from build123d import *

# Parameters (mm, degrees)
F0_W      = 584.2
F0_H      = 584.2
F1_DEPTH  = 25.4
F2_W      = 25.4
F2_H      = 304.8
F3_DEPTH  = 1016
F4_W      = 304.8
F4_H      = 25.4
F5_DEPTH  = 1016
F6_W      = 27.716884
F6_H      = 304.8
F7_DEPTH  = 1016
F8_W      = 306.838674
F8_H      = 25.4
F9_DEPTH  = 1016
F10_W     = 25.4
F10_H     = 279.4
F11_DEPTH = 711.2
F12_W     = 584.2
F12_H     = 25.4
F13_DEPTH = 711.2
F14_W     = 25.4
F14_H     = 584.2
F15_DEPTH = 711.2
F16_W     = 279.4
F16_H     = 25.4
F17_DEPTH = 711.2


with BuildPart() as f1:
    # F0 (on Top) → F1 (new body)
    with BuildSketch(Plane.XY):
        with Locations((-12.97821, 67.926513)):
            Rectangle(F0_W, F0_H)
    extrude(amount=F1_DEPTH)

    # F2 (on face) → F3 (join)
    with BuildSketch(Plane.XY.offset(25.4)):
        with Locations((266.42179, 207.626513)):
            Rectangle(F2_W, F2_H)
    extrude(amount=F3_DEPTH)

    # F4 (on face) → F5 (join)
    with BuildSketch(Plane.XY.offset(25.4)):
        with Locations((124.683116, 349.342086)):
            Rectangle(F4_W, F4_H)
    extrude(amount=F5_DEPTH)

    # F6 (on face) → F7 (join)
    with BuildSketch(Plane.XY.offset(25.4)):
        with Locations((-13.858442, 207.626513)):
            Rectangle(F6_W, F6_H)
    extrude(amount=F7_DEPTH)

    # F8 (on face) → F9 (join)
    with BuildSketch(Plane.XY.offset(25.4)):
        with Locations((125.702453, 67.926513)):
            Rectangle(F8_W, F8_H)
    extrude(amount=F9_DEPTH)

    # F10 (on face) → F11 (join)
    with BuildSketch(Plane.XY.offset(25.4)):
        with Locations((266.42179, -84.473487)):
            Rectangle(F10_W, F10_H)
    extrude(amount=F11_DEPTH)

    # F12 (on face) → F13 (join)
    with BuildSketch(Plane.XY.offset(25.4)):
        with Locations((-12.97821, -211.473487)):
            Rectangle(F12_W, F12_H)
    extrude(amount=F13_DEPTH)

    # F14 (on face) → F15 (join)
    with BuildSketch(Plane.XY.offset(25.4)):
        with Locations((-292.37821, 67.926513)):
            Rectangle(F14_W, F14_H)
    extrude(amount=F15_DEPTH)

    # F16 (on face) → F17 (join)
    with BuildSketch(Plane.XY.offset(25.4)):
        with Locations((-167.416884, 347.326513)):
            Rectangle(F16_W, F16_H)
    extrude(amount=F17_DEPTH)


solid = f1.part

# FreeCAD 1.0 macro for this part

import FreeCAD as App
import Part
import Sketcher
from FreeCAD import Vector
Q = App.Units.Quantity


def add_polygon(sketch, points):
    """Adds a closed chain of lines whose ends are joined by coincident constraints."""
    first, n = sketch.GeometryCount, len(points)
    for a, b in zip(points, points[1:] + points[:1]):
        sketch.addGeometry(Part.LineSegment(App.Vector(*a, 0), App.Vector(*b, 0)), False)
    for i in range(n):
        sketch.addConstraint(Sketcher.Constraint("Coincident", first + i, 2, first + (i + 1) % n, 1))

doc = App.newDocument("Part")
body = doc.addObject("PartDesign::Body", "Body")

# Sketch on XY plane
sketch1 = doc.addObject("Sketcher::SketchObject", "Sketch")
body.addObject(sketch1)
sketch1.AttachmentSupport = (doc.XY_Plane, [""])
sketch1.MapMode = "FlatFace"
add_polygon(sketch1, [(-305, 360), (-305, -224), (279, -224), (279, 360)])  # lines 0-3
sketch1.addConstraint([
    Sketcher.Constraint("Vertical", 0),
    Sketcher.Constraint("Horizontal", 1),
    Sketcher.Constraint("Vertical", 2),
    Sketcher.Constraint("Horizontal", 3),
    Sketcher.Constraint("Equal", 3, 0),
    Sketcher.Constraint("DistanceX", 1, 1, 1, 2, Q("23 in")),
    Sketcher.Constraint("DistanceX", 0, 2, -1, 1, 305.07821),
    Sketcher.Constraint("DistanceY", 0, 2, -1, 1, 224.173487),
])
pad1 = doc.addObject("PartDesign::Pad", "Pad")
body.addObject(pad1)
pad1.Profile = sketch1
pad1.Length = Q("1 in")

# Sketch on XY plane
sketch2 = doc.addObject("Sketcher::SketchObject", "Sketch001")
body.addObject(sketch2)
sketch2.AttachmentSupport = (doc.XY_Plane, [""])
sketch2.MapMode = "FlatFace"
sketch2.AttachmentOffset = App.Placement(Vector(0, 0, 1 * 25.4), App.Rotation())
add_polygon(sketch2, [(254, 360), (254, 55), (279, 55), (279, 360)])  # lines 0-3
sketch2.addConstraint([
    Sketcher.Constraint("Vertical", 0),
    Sketcher.Constraint("Horizontal", 1),
    Sketcher.Constraint("Vertical", 2),
    Sketcher.Constraint("Horizontal", 3),
    Sketcher.Constraint("DistanceX", 1, 1, 1, 2, Q("1 in")),
    Sketcher.Constraint("DistanceY", 0, 2, 0, 1, Q("12 in")),
    Sketcher.Constraint("DistanceX", -1, 1, 0, 2, 253.72179),
    Sketcher.Constraint("DistanceY", -1, 1, 0, 2, 55.226513),
])
pad2 = doc.addObject("PartDesign::Pad", "Pad001")
body.addObject(pad2)
pad2.Profile = sketch2
pad2.Length = Q("40 in")

# Sketch on XY plane
sketch3 = doc.addObject("Sketcher::SketchObject", "Sketch002")
body.addObject(sketch3)
sketch3.AttachmentSupport = (doc.XY_Plane, [""])
sketch3.MapMode = "FlatFace"
sketch3.AttachmentOffset = App.Placement(Vector(0, 0, 1 * 25.4), App.Rotation())
add_polygon(sketch3, [(-28, 362), (-28, 337), (277, 337), (277, 362)])  # lines 0-3
sketch3.addConstraint([
    Sketcher.Constraint("Vertical", 0),
    Sketcher.Constraint("Horizontal", 1),
    Sketcher.Constraint("Vertical", 2),
    Sketcher.Constraint("Horizontal", 3),
    Sketcher.Constraint("DistanceX", 1, 1, 1, 2, Q("12 in")),
    Sketcher.Constraint("DistanceY", 0, 2, 0, 1, Q("1 in")),
    Sketcher.Constraint("DistanceX", 0, 2, -1, 1, 27.716884),
    Sketcher.Constraint("DistanceY", -1, 1, 0, 2, 336.642086),
])
pad3 = doc.addObject("PartDesign::Pad", "Pad002")
body.addObject(pad3)
pad3.Profile = sketch3
pad3.Length = Q("40 in")

# Sketch on XY plane
sketch4 = doc.addObject("Sketcher::SketchObject", "Sketch003")
body.addObject(sketch4)
sketch4.AttachmentSupport = (doc.XY_Plane, [""])
sketch4.MapMode = "FlatFace"
sketch4.AttachmentOffset = App.Placement(Vector(0, 0, 1 * 25.4), App.Rotation())
add_polygon(sketch4, [(-28, 360), (-28, 55), (0, 55), (0, 360)])  # lines 0-3
sketch4.addConstraint([
    Sketcher.Constraint("Vertical", 0),
    Sketcher.Constraint("Horizontal", 1),
    Sketcher.Constraint("Vertical", 2),
    Sketcher.Constraint("Horizontal", 3),
    Sketcher.Constraint("PointOnObject", 1, 2, -2),
    Sketcher.Constraint("DistanceY", 0, 2, 0, 1, Q("12 in")),
    Sketcher.Constraint("DistanceX", 1, 1, 1, 2, 27.716884),
    Sketcher.Constraint("DistanceY", -1, 1, 0, 2, 55.226513),
])
pad4 = doc.addObject("PartDesign::Pad", "Pad003")
body.addObject(pad4)
pad4.Profile = sketch4
pad4.Length = Q("40 in")

# Sketch on XY plane
sketch5 = doc.addObject("Sketcher::SketchObject", "Sketch004")
body.addObject(sketch5)
sketch5.AttachmentSupport = (doc.XY_Plane, [""])
sketch5.MapMode = "FlatFace"
sketch5.AttachmentOffset = App.Placement(Vector(0, 0, 1 * 25.4), App.Rotation())
add_polygon(sketch5, [(-28, 81), (-28, 55), (279, 55), (279, 81)])  # lines 0-3
sketch5.addConstraint([
    Sketcher.Constraint("Vertical", 0),
    Sketcher.Constraint("Horizontal", 1),
    Sketcher.Constraint("Vertical", 2),
    Sketcher.Constraint("Horizontal", 3),
    Sketcher.Constraint("DistanceY", 0, 2, 0, 1, Q("1 in")),
    Sketcher.Constraint("DistanceX", 1, 1, 1, 2, 306.838674),
    Sketcher.Constraint("DistanceX", -1, 1, 1, 2, 279.12179),
    Sketcher.Constraint("DistanceY", -1, 1, 0, 2, 55.226513),
])
pad5 = doc.addObject("PartDesign::Pad", "Pad004")
body.addObject(pad5)
pad5.Profile = sketch5
pad5.Length = Q("40 in")

# Sketch on XY plane
sketch6 = doc.addObject("Sketcher::SketchObject", "Sketch005")
body.addObject(sketch6)
sketch6.AttachmentSupport = (doc.XY_Plane, [""])
sketch6.MapMode = "FlatFace"
sketch6.AttachmentOffset = App.Placement(Vector(0, 0, 1 * 25.4), App.Rotation())
add_polygon(sketch6, [(254, 55), (254, -224), (279, -224), (279, 55)])  # lines 0-3
sketch6.addConstraint([
    Sketcher.Constraint("Vertical", 0),
    Sketcher.Constraint("Horizontal", 1),
    Sketcher.Constraint("Vertical", 2),
    Sketcher.Constraint("Horizontal", 3),
    Sketcher.Constraint("DistanceX", 1, 1, 1, 2, Q("1 in")),
    Sketcher.Constraint("DistanceY", 0, 2, 0, 1, Q("11 in")),
    Sketcher.Constraint("DistanceX", -1, 1, 0, 2, 253.72179),
    Sketcher.Constraint("DistanceY", 0, 2, -1, 1, 224.173487),
])
pad6 = doc.addObject("PartDesign::Pad", "Pad005")
body.addObject(pad6)
pad6.Profile = sketch6
pad6.Length = Q("28 in")

# Sketch on XY plane
sketch7 = doc.addObject("Sketcher::SketchObject", "Sketch006")
body.addObject(sketch7)
sketch7.AttachmentSupport = (doc.XY_Plane, [""])
sketch7.MapMode = "FlatFace"
sketch7.AttachmentOffset = App.Placement(Vector(0, 0, 1 * 25.4), App.Rotation())
add_polygon(sketch7, [(-305, -199), (-305, -224), (279, -224), (279, -199)])  # lines 0-3
sketch7.addConstraint([
    Sketcher.Constraint("Vertical", 0),
    Sketcher.Constraint("Horizontal", 1),
    Sketcher.Constraint("Vertical", 2),
    Sketcher.Constraint("Horizontal", 3),
    Sketcher.Constraint("DistanceX", 1, 1, 1, 2, Q("23 in")),
    Sketcher.Constraint("DistanceY", 0, 2, 0, 1, Q("1 in")),
    Sketcher.Constraint("DistanceX", 0, 2, -1, 1, 305.07821),
    Sketcher.Constraint("DistanceY", 0, 2, -1, 1, 224.173487),
])
pad7 = doc.addObject("PartDesign::Pad", "Pad006")
body.addObject(pad7)
pad7.Profile = sketch7
pad7.Length = Q("28 in")

# Sketch on XY plane
sketch8 = doc.addObject("Sketcher::SketchObject", "Sketch007")
body.addObject(sketch8)
sketch8.AttachmentSupport = (doc.XY_Plane, [""])
sketch8.MapMode = "FlatFace"
sketch8.AttachmentOffset = App.Placement(Vector(0, 0, 1 * 25.4), App.Rotation())
add_polygon(sketch8, [(-305, 360), (-305, -224), (-280, -224), (-280, 360)])  # lines 0-3
sketch8.addConstraint([
    Sketcher.Constraint("Vertical", 0),
    Sketcher.Constraint("Horizontal", 1),
    Sketcher.Constraint("Vertical", 2),
    Sketcher.Constraint("Horizontal", 3),
    Sketcher.Constraint("DistanceX", 1, 1, 1, 2, Q("1 in")),
    Sketcher.Constraint("DistanceY", 0, 2, 0, 1, Q("23 in")),
    Sketcher.Constraint("DistanceX", 0, 2, -1, 1, 305.07821),
    Sketcher.Constraint("DistanceY", 0, 2, -1, 1, 224.173487),
])
pad8 = doc.addObject("PartDesign::Pad", "Pad007")
body.addObject(pad8)
pad8.Profile = sketch8
pad8.Length = Q("28 in")

# Sketch on XY plane
sketch9 = doc.addObject("Sketcher::SketchObject", "Sketch008")
body.addObject(sketch9)
sketch9.AttachmentSupport = (doc.XY_Plane, [""])
sketch9.MapMode = "FlatFace"
sketch9.AttachmentOffset = App.Placement(Vector(0, 0, 1 * 25.4), App.Rotation())
add_polygon(sketch9, [(-307, 360), (-307, 335), (-28, 335), (-28, 360)])  # lines 0-3
sketch9.addConstraint([
    Sketcher.Constraint("Vertical", 0),
    Sketcher.Constraint("Horizontal", 1),
    Sketcher.Constraint("Vertical", 2),
    Sketcher.Constraint("Horizontal", 3),
    Sketcher.Constraint("DistanceX", 1, 1, 1, 2, Q("11 in")),
    Sketcher.Constraint("DistanceY", 0, 2, 0, 1, Q("1 in")),
    Sketcher.Constraint("DistanceX", 0, 2, -1, 1, 307.116884),
    Sketcher.Constraint("DistanceY", -1, 1, 0, 2, 334.626513),
])
pad9 = doc.addObject("PartDesign::Pad", "Pad008")
body.addObject(pad9)
pad9.Profile = sketch9
pad9.Length = Q("28 in")

doc.recompute()
